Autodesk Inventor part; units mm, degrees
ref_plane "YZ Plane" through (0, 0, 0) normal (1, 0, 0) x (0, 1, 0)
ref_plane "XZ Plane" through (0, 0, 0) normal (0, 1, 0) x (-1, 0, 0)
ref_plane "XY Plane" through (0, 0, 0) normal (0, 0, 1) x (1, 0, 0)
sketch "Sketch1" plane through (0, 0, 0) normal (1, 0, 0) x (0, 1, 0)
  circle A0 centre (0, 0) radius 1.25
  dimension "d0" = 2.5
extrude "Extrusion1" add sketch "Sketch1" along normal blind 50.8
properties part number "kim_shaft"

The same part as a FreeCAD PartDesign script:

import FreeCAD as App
import Part
import Sketcher

V = App.Vector

doc = App.newDocument("Part")
body = doc.addObject("PartDesign::Body", "Body")

# Sketch on YZ plane
sketch1 = doc.addObject("Sketcher::SketchObject", "Sketch")
body.addObject(sketch1)
sketch1.AttachmentSupport = (doc.YZ_Plane, [""])
sketch1.MapMode = "FlatFace"
sketch1.addGeometry(Part.Circle(V(0, 0, 0), V(0, 0, 1), 1.2), False)
sketch1.addConstraint(Sketcher.Constraint("Coincident", 0, 3, -1, 1))
sketch1.addConstraint(Sketcher.Constraint("Diameter", 0, 2.5))
pad1 = doc.addObject("PartDesign::Pad", "Pad")
body.addObject(pad1)
pad1.Profile = sketch1
pad1.Length = 50.8

doc.recompute()
